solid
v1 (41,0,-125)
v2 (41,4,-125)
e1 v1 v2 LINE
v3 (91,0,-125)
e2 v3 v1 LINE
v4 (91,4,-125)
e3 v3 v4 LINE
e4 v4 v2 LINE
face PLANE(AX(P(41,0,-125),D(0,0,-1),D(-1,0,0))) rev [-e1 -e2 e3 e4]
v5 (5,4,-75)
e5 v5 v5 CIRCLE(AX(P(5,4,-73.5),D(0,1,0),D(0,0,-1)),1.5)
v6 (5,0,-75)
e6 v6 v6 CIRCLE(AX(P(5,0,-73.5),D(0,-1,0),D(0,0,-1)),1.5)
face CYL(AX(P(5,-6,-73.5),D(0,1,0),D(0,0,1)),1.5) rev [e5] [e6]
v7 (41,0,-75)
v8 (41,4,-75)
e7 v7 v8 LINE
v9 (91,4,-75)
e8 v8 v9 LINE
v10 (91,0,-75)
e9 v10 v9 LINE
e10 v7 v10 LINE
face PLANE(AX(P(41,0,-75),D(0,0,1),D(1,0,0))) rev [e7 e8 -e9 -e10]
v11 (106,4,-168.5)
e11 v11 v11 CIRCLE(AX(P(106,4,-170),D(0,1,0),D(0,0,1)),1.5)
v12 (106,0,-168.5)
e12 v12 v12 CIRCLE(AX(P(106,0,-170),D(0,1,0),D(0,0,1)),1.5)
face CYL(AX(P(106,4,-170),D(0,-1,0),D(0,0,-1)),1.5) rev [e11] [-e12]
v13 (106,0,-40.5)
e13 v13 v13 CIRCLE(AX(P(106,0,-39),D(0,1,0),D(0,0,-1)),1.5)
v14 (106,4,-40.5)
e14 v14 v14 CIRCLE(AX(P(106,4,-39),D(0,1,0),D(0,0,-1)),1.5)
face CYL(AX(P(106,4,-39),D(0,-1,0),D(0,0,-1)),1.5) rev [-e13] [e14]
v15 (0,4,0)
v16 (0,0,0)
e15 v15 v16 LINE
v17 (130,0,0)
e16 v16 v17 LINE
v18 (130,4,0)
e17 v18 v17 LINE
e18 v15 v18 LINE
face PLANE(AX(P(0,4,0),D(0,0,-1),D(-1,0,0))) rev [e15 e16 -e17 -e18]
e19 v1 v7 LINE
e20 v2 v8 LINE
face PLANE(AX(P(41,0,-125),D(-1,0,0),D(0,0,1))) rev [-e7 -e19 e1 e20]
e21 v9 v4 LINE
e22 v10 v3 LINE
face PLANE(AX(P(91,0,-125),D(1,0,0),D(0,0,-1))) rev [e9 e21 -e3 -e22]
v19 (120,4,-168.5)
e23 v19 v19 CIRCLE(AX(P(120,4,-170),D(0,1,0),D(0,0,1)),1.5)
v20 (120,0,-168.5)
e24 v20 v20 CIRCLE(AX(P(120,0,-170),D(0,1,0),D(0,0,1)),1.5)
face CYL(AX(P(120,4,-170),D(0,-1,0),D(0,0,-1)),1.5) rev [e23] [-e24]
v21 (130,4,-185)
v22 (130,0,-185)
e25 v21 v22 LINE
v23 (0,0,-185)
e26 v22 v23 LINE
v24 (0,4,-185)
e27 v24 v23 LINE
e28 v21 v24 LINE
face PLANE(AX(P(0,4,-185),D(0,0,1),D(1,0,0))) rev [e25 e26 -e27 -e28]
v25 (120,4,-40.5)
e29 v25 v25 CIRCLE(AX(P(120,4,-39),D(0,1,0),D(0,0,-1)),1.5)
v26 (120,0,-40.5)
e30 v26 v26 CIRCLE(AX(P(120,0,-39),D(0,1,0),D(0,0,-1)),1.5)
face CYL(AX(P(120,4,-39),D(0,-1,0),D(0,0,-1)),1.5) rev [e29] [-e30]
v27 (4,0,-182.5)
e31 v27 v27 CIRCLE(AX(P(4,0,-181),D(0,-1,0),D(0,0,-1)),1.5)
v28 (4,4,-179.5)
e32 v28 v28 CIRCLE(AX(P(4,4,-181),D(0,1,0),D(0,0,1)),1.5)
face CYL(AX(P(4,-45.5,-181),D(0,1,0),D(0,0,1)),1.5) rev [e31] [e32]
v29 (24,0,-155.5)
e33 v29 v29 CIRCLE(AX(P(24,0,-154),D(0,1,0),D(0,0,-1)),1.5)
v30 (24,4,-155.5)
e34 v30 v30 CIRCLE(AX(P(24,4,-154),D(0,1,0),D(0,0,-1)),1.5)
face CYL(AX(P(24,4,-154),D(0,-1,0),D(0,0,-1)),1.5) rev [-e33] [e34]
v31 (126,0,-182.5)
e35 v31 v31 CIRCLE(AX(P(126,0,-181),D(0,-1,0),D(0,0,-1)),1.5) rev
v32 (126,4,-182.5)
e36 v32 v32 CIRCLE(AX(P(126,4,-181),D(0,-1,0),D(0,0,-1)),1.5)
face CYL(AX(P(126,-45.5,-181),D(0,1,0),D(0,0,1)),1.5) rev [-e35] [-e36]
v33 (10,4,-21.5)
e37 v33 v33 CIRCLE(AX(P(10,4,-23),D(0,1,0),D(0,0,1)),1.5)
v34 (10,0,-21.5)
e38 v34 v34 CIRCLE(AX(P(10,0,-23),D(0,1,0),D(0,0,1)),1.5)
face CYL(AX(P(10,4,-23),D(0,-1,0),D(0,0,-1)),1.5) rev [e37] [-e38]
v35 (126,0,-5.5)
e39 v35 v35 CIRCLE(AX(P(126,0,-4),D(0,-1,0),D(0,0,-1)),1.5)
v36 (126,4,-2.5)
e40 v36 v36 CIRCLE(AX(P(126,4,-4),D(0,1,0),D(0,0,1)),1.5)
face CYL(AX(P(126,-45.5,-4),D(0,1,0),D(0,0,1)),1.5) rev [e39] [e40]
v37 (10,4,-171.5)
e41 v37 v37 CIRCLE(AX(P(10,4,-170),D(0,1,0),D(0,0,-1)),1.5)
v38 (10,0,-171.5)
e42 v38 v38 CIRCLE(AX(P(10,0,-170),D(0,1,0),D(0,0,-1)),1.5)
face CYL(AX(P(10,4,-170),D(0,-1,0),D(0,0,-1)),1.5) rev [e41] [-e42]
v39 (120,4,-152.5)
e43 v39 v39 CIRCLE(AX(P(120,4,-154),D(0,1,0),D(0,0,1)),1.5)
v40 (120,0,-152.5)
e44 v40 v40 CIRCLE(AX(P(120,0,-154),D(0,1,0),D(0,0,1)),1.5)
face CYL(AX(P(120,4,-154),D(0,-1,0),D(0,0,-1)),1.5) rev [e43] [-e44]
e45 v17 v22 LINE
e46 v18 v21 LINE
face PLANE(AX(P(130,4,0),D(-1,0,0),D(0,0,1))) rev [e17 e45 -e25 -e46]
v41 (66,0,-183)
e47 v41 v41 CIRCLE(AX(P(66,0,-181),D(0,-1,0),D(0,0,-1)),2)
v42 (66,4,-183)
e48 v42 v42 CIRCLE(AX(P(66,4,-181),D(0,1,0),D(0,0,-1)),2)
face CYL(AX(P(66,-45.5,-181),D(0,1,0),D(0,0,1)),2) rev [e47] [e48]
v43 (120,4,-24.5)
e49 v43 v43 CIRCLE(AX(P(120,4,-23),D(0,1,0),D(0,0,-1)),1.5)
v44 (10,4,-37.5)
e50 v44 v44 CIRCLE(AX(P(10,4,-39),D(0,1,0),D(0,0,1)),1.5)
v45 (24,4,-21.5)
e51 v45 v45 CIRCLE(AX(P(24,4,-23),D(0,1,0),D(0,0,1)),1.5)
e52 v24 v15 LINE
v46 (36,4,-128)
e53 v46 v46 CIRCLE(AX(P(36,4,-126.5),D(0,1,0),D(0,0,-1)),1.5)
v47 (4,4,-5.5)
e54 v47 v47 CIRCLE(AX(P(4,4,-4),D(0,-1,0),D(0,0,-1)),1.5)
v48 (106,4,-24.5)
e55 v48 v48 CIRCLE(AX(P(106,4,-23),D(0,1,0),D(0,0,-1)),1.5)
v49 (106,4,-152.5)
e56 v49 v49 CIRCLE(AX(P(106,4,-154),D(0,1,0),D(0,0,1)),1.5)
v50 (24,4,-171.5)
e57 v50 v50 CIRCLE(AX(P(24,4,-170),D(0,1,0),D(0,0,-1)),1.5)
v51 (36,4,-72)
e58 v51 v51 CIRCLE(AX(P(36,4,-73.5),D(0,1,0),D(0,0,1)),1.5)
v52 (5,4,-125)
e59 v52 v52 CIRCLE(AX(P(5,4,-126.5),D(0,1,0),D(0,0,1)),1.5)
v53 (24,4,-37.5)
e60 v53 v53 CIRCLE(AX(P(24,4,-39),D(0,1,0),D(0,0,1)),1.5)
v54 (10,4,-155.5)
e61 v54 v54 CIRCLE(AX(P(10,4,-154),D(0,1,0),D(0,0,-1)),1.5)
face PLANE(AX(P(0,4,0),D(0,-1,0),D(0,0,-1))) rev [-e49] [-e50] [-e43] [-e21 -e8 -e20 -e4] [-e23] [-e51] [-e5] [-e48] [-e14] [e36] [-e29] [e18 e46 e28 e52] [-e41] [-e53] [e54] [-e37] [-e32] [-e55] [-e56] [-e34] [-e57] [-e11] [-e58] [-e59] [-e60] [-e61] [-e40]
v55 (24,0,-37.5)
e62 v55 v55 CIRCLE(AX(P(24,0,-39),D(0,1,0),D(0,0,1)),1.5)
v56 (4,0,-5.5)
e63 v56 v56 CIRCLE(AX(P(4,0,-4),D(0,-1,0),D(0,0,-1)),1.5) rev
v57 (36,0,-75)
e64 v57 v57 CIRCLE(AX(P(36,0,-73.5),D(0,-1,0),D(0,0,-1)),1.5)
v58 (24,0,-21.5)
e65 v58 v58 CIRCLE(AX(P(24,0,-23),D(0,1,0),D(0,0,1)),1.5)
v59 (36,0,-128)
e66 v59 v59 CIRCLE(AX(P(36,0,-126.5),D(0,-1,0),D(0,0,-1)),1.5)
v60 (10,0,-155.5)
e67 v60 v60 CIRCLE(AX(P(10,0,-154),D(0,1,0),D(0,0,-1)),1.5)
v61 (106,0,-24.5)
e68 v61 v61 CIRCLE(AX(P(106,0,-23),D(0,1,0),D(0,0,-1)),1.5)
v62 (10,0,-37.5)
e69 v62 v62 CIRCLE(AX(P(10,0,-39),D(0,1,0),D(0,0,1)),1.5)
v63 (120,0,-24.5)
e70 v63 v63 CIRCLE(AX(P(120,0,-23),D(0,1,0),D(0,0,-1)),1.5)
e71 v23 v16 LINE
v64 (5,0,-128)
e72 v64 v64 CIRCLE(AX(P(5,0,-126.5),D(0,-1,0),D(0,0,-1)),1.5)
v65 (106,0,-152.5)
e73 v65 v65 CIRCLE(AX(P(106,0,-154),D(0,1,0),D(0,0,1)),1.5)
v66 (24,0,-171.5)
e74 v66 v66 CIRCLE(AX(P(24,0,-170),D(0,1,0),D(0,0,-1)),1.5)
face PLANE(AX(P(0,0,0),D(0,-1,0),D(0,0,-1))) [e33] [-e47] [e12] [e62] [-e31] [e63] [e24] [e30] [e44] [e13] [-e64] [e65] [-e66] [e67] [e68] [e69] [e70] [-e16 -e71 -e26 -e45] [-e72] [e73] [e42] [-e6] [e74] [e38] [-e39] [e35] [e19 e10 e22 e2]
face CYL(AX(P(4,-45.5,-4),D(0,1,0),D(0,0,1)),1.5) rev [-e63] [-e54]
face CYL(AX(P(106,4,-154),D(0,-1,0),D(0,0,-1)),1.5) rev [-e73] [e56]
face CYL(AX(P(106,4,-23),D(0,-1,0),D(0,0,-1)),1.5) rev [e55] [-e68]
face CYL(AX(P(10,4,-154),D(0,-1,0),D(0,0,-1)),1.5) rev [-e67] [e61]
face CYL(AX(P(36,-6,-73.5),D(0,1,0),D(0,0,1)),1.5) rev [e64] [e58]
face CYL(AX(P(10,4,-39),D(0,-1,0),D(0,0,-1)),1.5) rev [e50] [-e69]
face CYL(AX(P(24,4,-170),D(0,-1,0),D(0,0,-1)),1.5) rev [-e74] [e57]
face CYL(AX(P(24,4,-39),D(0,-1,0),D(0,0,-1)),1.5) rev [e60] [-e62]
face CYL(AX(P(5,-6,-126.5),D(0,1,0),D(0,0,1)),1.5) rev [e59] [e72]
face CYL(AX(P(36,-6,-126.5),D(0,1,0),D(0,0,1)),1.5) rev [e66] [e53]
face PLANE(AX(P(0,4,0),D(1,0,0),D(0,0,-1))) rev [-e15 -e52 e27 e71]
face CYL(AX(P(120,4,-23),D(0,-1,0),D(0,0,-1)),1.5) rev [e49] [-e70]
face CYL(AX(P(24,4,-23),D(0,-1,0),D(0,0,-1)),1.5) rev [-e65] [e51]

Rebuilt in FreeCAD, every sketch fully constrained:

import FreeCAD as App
import Part
import Sketcher


def add_polygon(sketch, points):
    """Adds a closed chain of lines whose ends are joined by coincident constraints."""
    first, n = sketch.GeometryCount, len(points)
    for a, b in zip(points, points[1:] + points[:1]):
        sketch.addGeometry(Part.LineSegment(App.Vector(*a, 0), App.Vector(*b, 0)), False)
    for i in range(n):
        sketch.addConstraint(Sketcher.Constraint("Coincident", first + i, 2, first + (i + 1) % n, 1))

doc = App.newDocument("Part")
params = doc.addObject("Spreadsheet::Sheet", "Params")
for row, (alias, value) in enumerate([
    ("sketch1_diameter", "3 mm"),
    ("sketch1_width", "130 mm"),
    ("sketch1_height", "185 mm"),
    ("pad1_length", "4 mm"),
    ("sketch2_width", "50 mm"),
    ("pocket1_length", "4 mm"),
    ("sketch3_diameter", "3 mm"),
    ("pocket2_length", "49.5 mm"),
    ("sketch4_diameter", "4 mm"),
    ("pocket3_length", "49.5 mm"),
    ("sketch5_diameter", "3 mm"),
    ("pocket4_length", "10 mm"),
], start=1):
    params.set(f"A{row}", alias)
    params.set(f"B{row}", "=" + value)
    params.setAlias(f"B{row}", alias)

body = doc.addObject("PartDesign::Body", "Body")

sketch1 = doc.addObject("Sketcher::SketchObject", "Sketch")
body.addObject(sketch1)
sketch1.AttachmentSupport = (doc.XZ_Plane, [""])
sketch1.MapMode = "FlatFace"
add_polygon(sketch1, [(0, -185), (0, 0), (130, 0), (130, -185)])
sketch1.addGeometry(Part.Circle(App.Vector(10, -23, 0), App.Vector(0, 0, 1), 1.5), False)
sketch1.addGeometry(Part.Circle(App.Vector(10, -39, 0), App.Vector(0, 0, 1), 1.5), False)
sketch1.addGeometry(Part.Circle(App.Vector(24, -23, 0), App.Vector(0, 0, 1), 1.5), False)
sketch1.addGeometry(Part.Circle(App.Vector(24, -39, 0), App.Vector(0, 0, 1), 1.5), False)
sketch1.addGeometry(Part.Circle(App.Vector(106, -23, 0), App.Vector(0, 0, 1), 1.5), False)
sketch1.addGeometry(Part.Circle(App.Vector(106, -39, 0), App.Vector(0, 0, 1), 1.5), False)
sketch1.addGeometry(Part.Circle(App.Vector(120, -23, 0), App.Vector(0, 0, 1), 1.5), False)
sketch1.addGeometry(Part.Circle(App.Vector(120, -39, 0), App.Vector(0, 0, 1), 1.5), False)
sketch1.addGeometry(Part.Circle(App.Vector(10, -154, 0), App.Vector(0, 0, 1), 1.5), False)
sketch1.addGeometry(Part.Circle(App.Vector(10, -170, 0), App.Vector(0, 0, 1), 1.5), False)
sketch1.addGeometry(Part.Circle(App.Vector(24, -154, 0), App.Vector(0, 0, 1), 1.5), False)
sketch1.addGeometry(Part.Circle(App.Vector(24, -170, 0), App.Vector(0, 0, 1), 1.5), False)
sketch1.addGeometry(Part.Circle(App.Vector(106, -154, 0), App.Vector(0, 0, 1), 1.5), False)
sketch1.addGeometry(Part.Circle(App.Vector(106, -170, 0), App.Vector(0, 0, 1), 1.5), False)
sketch1.addGeometry(Part.Circle(App.Vector(120, -154, 0), App.Vector(0, 0, 1), 1.5), False)
sketch1.addGeometry(Part.Circle(App.Vector(120, -170, 0), App.Vector(0, 0, 1), 1.5), False)
sketch1.addConstraint([
    Sketcher.Constraint("Vertical", 0),
    Sketcher.Constraint("Horizontal", 1),
    Sketcher.Constraint("Vertical", 2),
    Sketcher.Constraint("Horizontal", 3),
    Sketcher.Constraint("Coincident", 0, 2, -1, 1),
    Sketcher.Constraint("Equal", 4, 5),
    Sketcher.Constraint("Equal", 5, 6),
    Sketcher.Constraint("Equal", 6, 7),
    Sketcher.Constraint("Equal", 7, 8),
    Sketcher.Constraint("Equal", 8, 9),
    Sketcher.Constraint("Equal", 9, 10),
    Sketcher.Constraint("Equal", 10, 11),
    Sketcher.Constraint("Equal", 11, 12),
    Sketcher.Constraint("Equal", 12, 13),
    Sketcher.Constraint("Equal", 13, 14),
    Sketcher.Constraint("Equal", 14, 15),
    Sketcher.Constraint("Equal", 15, 16),
    Sketcher.Constraint("Equal", 16, 17),
    Sketcher.Constraint("Equal", 17, 18),
    Sketcher.Constraint("Equal", 18, 19),
    Sketcher.Constraint("Horizontal", 4, 3, 6, 3),
    Sketcher.Constraint("Horizontal", 5, 3, 7, 3),
    Sketcher.Constraint("Horizontal", 6, 3, 8, 3),
    Sketcher.Constraint("Horizontal", 7, 3, 9, 3),
    Sketcher.Constraint("Horizontal", 8, 3, 10, 3),
    Sketcher.Constraint("Horizontal", 9, 3, 11, 3),
    Sketcher.Constraint("Horizontal", 12, 3, 14, 3),
    Sketcher.Constraint("Horizontal", 13, 3, 15, 3),
    Sketcher.Constraint("Horizontal", 14, 3, 16, 3),
    Sketcher.Constraint("Horizontal", 15, 3, 17, 3),
    Sketcher.Constraint("Horizontal", 16, 3, 18, 3),
    Sketcher.Constraint("Horizontal", 17, 3, 19, 3),
    Sketcher.Constraint("Vertical", 4, 3, 5, 3),
    Sketcher.Constraint("Vertical", 6, 3, 7, 3),
    Sketcher.Constraint("Vertical", 8, 3, 9, 3),
    Sketcher.Constraint("Vertical", 10, 3, 11, 3),
    Sketcher.Constraint("Vertical", 5, 3, 12, 3),
    Sketcher.Constraint("Vertical", 12, 3, 13, 3),
    Sketcher.Constraint("Vertical", 7, 3, 14, 3),
    Sketcher.Constraint("Vertical", 14, 3, 15, 3),
    Sketcher.Constraint("Vertical", 9, 3, 16, 3),
    Sketcher.Constraint("Vertical", 16, 3, 17, 3),
    Sketcher.Constraint("Vertical", 11, 3, 18, 3),
    Sketcher.Constraint("Vertical", 18, 3, 19, 3),
    Sketcher.Constraint("Diameter", 4, 3.0),
    Sketcher.Constraint("DistanceX", 1, 1, 1, 2, 130.0),
    Sketcher.Constraint("DistanceY", 0, 1, 0, 2, 185.0),
    Sketcher.Constraint("DistanceX", -1, 1, 4, 3, 10.0),
    Sketcher.Constraint("DistanceY", 4, 3, -1, 1, 23.0),
    Sketcher.Constraint("DistanceY", 5, 3, -1, 1, 39.0),
    Sketcher.Constraint("DistanceX", -1, 1, 6, 3, 24.0),
    Sketcher.Constraint("DistanceX", -1, 1, 8, 3, 106.0),
    Sketcher.Constraint("DistanceX", -1, 1, 10, 3, 120.0),
    Sketcher.Constraint("DistanceY", 12, 3, -1, 1, 154.0),
    Sketcher.Constraint("DistanceY", 13, 3, -1, 1, 170.0),
])
sketch1.setExpression("Constraints[48]", "Params.sketch1_diameter")
sketch1.setExpression("Constraints[49]", "Params.sketch1_width")
sketch1.setExpression("Constraints[50]", "Params.sketch1_height")
pad1 = doc.addObject("PartDesign::Pad", "Pad")
body.addObject(pad1)
pad1.Profile = sketch1
pad1.setExpression("Length", "Params.pad1_length")
pad1.Reversed = True

sketch2 = doc.addObject("Sketcher::SketchObject", "Sketch001")
body.addObject(sketch2)
sketch2.AttachmentSupport = (doc.XZ_Plane, [""])
sketch2.MapMode = "FlatFace"
sketch2.AttachmentOffset = App.Placement(App.Vector(0, 0, -4), App.Rotation())
add_polygon(sketch2, [(41, -125), (41, -75), (91, -75), (91, -125)])
sketch2.addConstraint([
    Sketcher.Constraint("Vertical", 0),
    Sketcher.Constraint("Horizontal", 1),
    Sketcher.Constraint("Vertical", 2),
    Sketcher.Constraint("Horizontal", 3),
    Sketcher.Constraint("Equal", 3, 0),
    Sketcher.Constraint("DistanceX", 1, 1, 1, 2, 50.0),
    Sketcher.Constraint("DistanceX", -1, 1, 0, 2, 41.0),
    Sketcher.Constraint("DistanceY", 0, 2, -1, 1, 75.0),
])
sketch2.setExpression("Constraints[9]", "Params.sketch2_width")
pocket1 = doc.addObject("PartDesign::Pocket", "Pocket")
body.addObject(pocket1)
pocket1.Profile = sketch2
pocket1.setExpression("Length", "Params.pocket1_length")
pocket1.Reversed = True

sketch3 = doc.addObject("Sketcher::SketchObject", "Sketch002")
body.addObject(sketch3)
sketch3.AttachmentSupport = (doc.XZ_Plane, [""])
sketch3.MapMode = "FlatFace"
sketch3.AttachmentOffset = App.Placement(App.Vector(0, 0, -4), App.Rotation())
sketch3.addGeometry([
    Part.Circle(App.Vector(126, -4, 0), App.Vector(0, 0, 1), 1.5),
    Part.Circle(App.Vector(126, -181, 0), App.Vector(0, 0, 1), 1.5),
    Part.Circle(App.Vector(4, -4, 0), App.Vector(0, 0, 1), 1.5),
    Part.Circle(App.Vector(4, -181, 0), App.Vector(0, 0, 1), 1.5),
], False)
sketch3.addConstraint([
    Sketcher.Constraint("Equal", 0, 1),
    Sketcher.Constraint("Equal", 1, 2),
    Sketcher.Constraint("Equal", 2, 3),
    Sketcher.Constraint("Horizontal", 0, 3, 2, 3),
    Sketcher.Constraint("Horizontal", 1, 3, 3, 3),
    Sketcher.Constraint("Vertical", 0, 3, 1, 3),
    Sketcher.Constraint("Vertical", 2, 3, 3, 3),
    Sketcher.Constraint("Diameter", 0, 3.0),
    Sketcher.Constraint("DistanceX", -1, 1, 0, 3, 126.0),
    Sketcher.Constraint("DistanceY", 0, 3, -1, 1, 4.0),
    Sketcher.Constraint("DistanceY", 1, 3, -1, 1, 181.0),
    Sketcher.Constraint("DistanceX", -1, 1, 2, 3, 4.0),
])
sketch3.setExpression("Constraints[7]", "Params.sketch3_diameter")
pocket2 = doc.addObject("PartDesign::Pocket", "Pocket001")
body.addObject(pocket2)
pocket2.Profile = sketch3
pocket2.setExpression("Length", "Params.pocket2_length")
pocket2.Reversed = True

sketch4 = doc.addObject("Sketcher::SketchObject", "Sketch003")
body.addObject(sketch4)
sketch4.AttachmentSupport = (doc.XZ_Plane, [""])
sketch4.MapMode = "FlatFace"
sketch4.AttachmentOffset = App.Placement(App.Vector(0, 0, -4), App.Rotation())
sketch4.addGeometry(Part.Circle(App.Vector(66, -181, 0), App.Vector(0, 0, 1), 2), False)
sketch4.addConstraint([
    Sketcher.Constraint("Diameter", 0, 4.0),
    Sketcher.Constraint("DistanceX", -1, 1, 0, 3, 66.0),
    Sketcher.Constraint("DistanceY", 0, 3, -1, 1, 181.0),
])
sketch4.setExpression("Constraints[0]", "Params.sketch4_diameter")
pocket3 = doc.addObject("PartDesign::Pocket", "Pocket002")
body.addObject(pocket3)
pocket3.Profile = sketch4
pocket3.setExpression("Length", "Params.pocket3_length")
pocket3.Reversed = True

sketch5 = doc.addObject("Sketcher::SketchObject", "Sketch004")
body.addObject(sketch5)
sketch5.AttachmentSupport = (doc.XZ_Plane, [""])
sketch5.MapMode = "FlatFace"
sketch5.AttachmentOffset = App.Placement(App.Vector(0, 0, -4), App.Rotation())
sketch5.addGeometry([
    Part.Circle(App.Vector(5, -126.5, 0), App.Vector(0, 0, 1), 1.5),
    Part.Circle(App.Vector(5, -73.5, 0), App.Vector(0, 0, 1), 1.5),
    Part.Circle(App.Vector(36, -126.5, 0), App.Vector(0, 0, 1), 1.5),
    Part.Circle(App.Vector(36, -73.5, 0), App.Vector(0, 0, 1), 1.5),
], False)
sketch5.addConstraint([
    Sketcher.Constraint("Equal", 0, 1),
    Sketcher.Constraint("Equal", 1, 2),
    Sketcher.Constraint("Equal", 2, 3),
    Sketcher.Constraint("Horizontal", 0, 3, 2, 3),
    Sketcher.Constraint("Horizontal", 1, 3, 3, 3),
    Sketcher.Constraint("Vertical", 0, 3, 1, 3),
    Sketcher.Constraint("Vertical", 2, 3, 3, 3),
    Sketcher.Constraint("Diameter", 0, 3.0),
    Sketcher.Constraint("DistanceX", -1, 1, 0, 3, 5.0),
    Sketcher.Constraint("DistanceX", -1, 1, 2, 3, 36.0),
    Sketcher.Constraint("DistanceY", 0, 3, 1, 3, 53.0),
    Sketcher.Constraint("DistanceY", 0, 3, -1, 1, 126.5),
])
sketch5.setExpression("Constraints[7]", "Params.sketch5_diameter")
pocket4 = doc.addObject("PartDesign::Pocket", "Pocket003")
body.addObject(pocket4)
pocket4.Profile = sketch5
pocket4.setExpression("Length", "Params.pocket4_length")
pocket4.Reversed = True

doc.recompute()
